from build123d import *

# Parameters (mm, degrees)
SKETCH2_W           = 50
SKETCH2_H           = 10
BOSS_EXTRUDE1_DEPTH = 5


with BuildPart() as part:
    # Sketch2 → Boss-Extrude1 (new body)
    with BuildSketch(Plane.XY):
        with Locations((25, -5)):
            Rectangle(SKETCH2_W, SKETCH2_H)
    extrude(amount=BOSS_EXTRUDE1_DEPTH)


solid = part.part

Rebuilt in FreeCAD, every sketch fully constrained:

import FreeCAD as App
import Part
import Sketcher
from FreeCAD import Vector

doc = App.newDocument("Part")
body = doc.addObject("PartDesign::Body", "Body")

# Sketch on XY plane
sketch1 = body.newObject("Sketcher::SketchObject", "Sketch")
sketch1.AttachmentSupport = (doc.getObject("XY_Plane"), [""])
sketch1.MapMode = "FlatFace"
sketch1.addGeometry(Part.LineSegment(Vector(0, 0, 0), Vector(0, -10, 0)), False)
sketch1.addGeometry(Part.LineSegment(Vector(0, -10, 0), Vector(50, -10, 0)), False)
sketch1.addGeometry(Part.LineSegment(Vector(50, -10, 0), Vector(50, 0, 0)), False)
sketch1.addGeometry(Part.LineSegment(Vector(50, 0, 0), Vector(0, 0, 0)), False)
sketch1.addConstraint(Sketcher.Constraint("Coincident", 0, 2, 1, 1))
sketch1.addConstraint(Sketcher.Constraint("Coincident", 1, 2, 2, 1))
sketch1.addConstraint(Sketcher.Constraint("Coincident", 2, 2, 3, 1))
sketch1.addConstraint(Sketcher.Constraint("Coincident", 3, 2, 0, 1))
sketch1.addConstraint(Sketcher.Constraint("Vertical", 0))
sketch1.addConstraint(Sketcher.Constraint("Horizontal", 1))
sketch1.addConstraint(Sketcher.Constraint("Vertical", 2))
sketch1.addConstraint(Sketcher.Constraint("Horizontal", 3))
sketch1.addConstraint(Sketcher.Constraint("Coincident", 3, 2, -1, 1))
sketch1.addConstraint(Sketcher.Constraint("DistanceX", 1, 1, 1, 2, 50.0))
sketch1.addConstraint(Sketcher.Constraint("DistanceY", 0, 2, 0, 1, 10.0))
pad1 = body.newObject("PartDesign::Pad", "Pad")
pad1.Profile = sketch1
pad1.Length = 5

doc.recompute()
